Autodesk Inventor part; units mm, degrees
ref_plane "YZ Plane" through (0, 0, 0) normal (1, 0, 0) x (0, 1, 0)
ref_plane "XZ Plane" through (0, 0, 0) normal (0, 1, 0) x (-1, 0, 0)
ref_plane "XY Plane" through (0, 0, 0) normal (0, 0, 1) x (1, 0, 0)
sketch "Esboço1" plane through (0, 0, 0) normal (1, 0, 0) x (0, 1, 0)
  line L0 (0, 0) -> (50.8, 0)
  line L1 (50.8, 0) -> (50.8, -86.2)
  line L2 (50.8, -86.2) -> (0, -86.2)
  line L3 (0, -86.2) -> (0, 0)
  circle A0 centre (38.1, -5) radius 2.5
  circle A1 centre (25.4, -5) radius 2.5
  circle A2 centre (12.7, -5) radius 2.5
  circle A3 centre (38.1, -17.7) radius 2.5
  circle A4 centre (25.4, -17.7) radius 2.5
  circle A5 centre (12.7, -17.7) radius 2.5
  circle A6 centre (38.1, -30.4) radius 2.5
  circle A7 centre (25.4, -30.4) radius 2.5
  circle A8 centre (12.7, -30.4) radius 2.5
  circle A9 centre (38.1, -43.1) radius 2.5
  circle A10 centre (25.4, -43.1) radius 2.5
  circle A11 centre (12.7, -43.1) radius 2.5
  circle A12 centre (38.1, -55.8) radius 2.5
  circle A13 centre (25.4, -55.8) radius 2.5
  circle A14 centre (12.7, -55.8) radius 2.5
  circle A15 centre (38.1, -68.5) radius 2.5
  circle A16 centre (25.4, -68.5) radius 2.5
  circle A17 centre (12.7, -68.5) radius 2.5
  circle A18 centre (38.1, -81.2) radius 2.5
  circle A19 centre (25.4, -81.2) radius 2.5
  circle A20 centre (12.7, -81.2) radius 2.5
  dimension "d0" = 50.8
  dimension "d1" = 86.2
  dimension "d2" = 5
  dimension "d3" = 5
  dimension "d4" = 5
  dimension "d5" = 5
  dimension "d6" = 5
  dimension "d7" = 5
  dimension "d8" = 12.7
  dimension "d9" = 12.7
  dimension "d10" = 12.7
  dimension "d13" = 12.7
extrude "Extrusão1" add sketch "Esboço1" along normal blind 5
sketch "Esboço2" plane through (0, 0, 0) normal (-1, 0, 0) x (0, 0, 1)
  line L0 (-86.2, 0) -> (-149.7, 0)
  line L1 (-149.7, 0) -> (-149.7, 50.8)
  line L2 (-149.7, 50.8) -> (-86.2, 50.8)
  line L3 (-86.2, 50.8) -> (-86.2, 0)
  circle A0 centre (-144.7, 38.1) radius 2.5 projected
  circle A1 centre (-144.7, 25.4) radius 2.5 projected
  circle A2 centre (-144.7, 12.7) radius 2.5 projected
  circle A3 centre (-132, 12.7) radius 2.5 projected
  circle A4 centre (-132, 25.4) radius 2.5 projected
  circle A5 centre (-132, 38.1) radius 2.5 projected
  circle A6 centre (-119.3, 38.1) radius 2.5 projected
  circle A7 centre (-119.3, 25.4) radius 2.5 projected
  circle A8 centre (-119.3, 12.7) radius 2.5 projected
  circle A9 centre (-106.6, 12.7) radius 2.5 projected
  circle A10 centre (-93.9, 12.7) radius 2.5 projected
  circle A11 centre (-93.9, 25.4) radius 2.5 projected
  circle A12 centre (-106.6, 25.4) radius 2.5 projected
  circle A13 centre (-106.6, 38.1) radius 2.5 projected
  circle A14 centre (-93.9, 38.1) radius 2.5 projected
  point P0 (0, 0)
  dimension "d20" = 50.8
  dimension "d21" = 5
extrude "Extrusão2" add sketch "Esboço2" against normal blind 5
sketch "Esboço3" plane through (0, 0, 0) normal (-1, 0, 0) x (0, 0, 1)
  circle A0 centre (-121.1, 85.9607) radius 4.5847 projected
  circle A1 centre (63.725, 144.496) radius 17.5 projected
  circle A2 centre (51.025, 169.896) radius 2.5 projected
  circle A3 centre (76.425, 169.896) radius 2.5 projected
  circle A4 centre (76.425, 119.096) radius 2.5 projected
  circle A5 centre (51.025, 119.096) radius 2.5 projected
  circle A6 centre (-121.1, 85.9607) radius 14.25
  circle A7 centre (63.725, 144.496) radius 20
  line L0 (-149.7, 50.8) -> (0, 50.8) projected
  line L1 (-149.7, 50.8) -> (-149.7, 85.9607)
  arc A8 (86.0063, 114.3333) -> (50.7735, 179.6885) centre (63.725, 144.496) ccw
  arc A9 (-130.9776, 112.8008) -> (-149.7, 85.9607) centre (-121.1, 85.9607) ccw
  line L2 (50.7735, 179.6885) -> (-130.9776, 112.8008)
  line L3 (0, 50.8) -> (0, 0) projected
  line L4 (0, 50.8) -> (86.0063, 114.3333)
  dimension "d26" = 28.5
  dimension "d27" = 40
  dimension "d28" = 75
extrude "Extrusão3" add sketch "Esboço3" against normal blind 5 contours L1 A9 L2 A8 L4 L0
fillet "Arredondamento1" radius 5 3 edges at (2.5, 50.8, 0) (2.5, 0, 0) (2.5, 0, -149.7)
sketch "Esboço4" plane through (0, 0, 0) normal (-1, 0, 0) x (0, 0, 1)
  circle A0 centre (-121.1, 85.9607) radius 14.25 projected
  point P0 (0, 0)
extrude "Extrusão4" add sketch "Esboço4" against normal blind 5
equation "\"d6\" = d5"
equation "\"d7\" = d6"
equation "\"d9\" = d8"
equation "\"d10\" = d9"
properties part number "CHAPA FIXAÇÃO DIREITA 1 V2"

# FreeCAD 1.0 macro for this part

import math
import FreeCAD as App
import Part
import Sketcher
Q = App.Units.Quantity


def edges_at(feature, points):
    """Names of the edges that pass closest to the given points."""
    edges = feature.Shape.Edges
    near = lambda p: min(range(len(edges)), key=lambda i: edges[i].distToShape(Part.Vertex(*p))[0])
    return sorted({f"Edge{near(p) + 1}" for p in points})

doc = App.newDocument("Part")
params = doc.addObject("Spreadsheet::Sheet", "Params")
for row, (alias, value) in enumerate([
    ("sketch1_diameter", "5 mm"),
    ("sketch1_width", "50.8 mm"),
    ("sketch1_height", "86.2 mm"),
    ("pad1_length", "5 mm"),
    ("sketch2_diameter", "5 mm"),
    ("sketch2_width", "50.8 mm"),
    ("sketch2_height", "63.5 mm"),
    ("pad2_length", "5 mm"),
    ("sketch3_diameter", "40 mm"),
    ("sketch3_diameter2", "28.5 mm"),
    ("sketch3_radius", "37.5 mm"),
    ("sketch3_diameter3", "5 mm"),
    ("sketch3_diameter4", "5 mm"),
    ("pad3_length", "5 mm"),
    ("fillet_radius", "5 mm"),
    ("sketch4_diameter", "28.5 mm"),
    ("pad4_length", "5 mm"),
], start=1):
    params.set(f"A{row}", alias)
    params.set(f"B{row}", "=" + value)
    params.setAlias(f"B{row}", alias)

body = doc.addObject("PartDesign::Body", "Body")

sketch1 = body.newObject("Sketcher::SketchObject", "Sketch")
sketch1.AttachmentSupport = (doc.getObject("YZ_Plane"), [""])
sketch1.MapMode = "FlatFace"
sketch1.addGeometry([
    Part.LineSegment(App.Vector(50.8, 0, 0), App.Vector(0, 0, 0)),
    Part.LineSegment(App.Vector(0, 0, 0), App.Vector(0, -86.2, 0)),
    Part.LineSegment(App.Vector(0, -86.2, 0), App.Vector(50.8, -86.2, 0)),
    Part.LineSegment(App.Vector(50.8, -86.2, 0), App.Vector(50.8, 0, 0)),
    Part.Circle(App.Vector(12.7, -81.2, 0), App.Vector(0, 0, 1), 2.5),
    Part.Circle(App.Vector(12.7, -68.5, 0), App.Vector(0, 0, 1), 2.5),
    Part.Circle(App.Vector(25.4, -81.2, 0), App.Vector(0, 0, 1), 2.5),
    Part.Circle(App.Vector(25.4, -68.5, 0), App.Vector(0, 0, 1), 2.5),
    Part.Circle(App.Vector(12.7, -55.8, 0), App.Vector(0, 0, 1), 2.5),
    Part.Circle(App.Vector(25.4, -55.8, 0), App.Vector(0, 0, 1), 2.5),
    Part.Circle(App.Vector(38.1, -81.2, 0), App.Vector(0, 0, 1), 2.5),
    Part.Circle(App.Vector(38.1, -68.5, 0), App.Vector(0, 0, 1), 2.5),
    Part.Circle(App.Vector(38.1, -55.8, 0), App.Vector(0, 0, 1), 2.5),
    Part.Circle(App.Vector(12.7, -43.1, 0), App.Vector(0, 0, 1), 2.5),
    Part.Circle(App.Vector(12.7, -30.4, 0), App.Vector(0, 0, 1), 2.5),
    Part.Circle(App.Vector(25.4, -43.1, 0), App.Vector(0, 0, 1), 2.5),
    Part.Circle(App.Vector(25.4, -30.4, 0), App.Vector(0, 0, 1), 2.5),
    Part.Circle(App.Vector(12.7, -17.7, 0), App.Vector(0, 0, 1), 2.5),
    Part.Circle(App.Vector(12.7, -5, 0), App.Vector(0, 0, 1), 2.5),
    Part.Circle(App.Vector(25.4, -17.7, 0), App.Vector(0, 0, 1), 2.5),
    Part.Circle(App.Vector(25.4, -5, 0), App.Vector(0, 0, 1), 2.5),
    Part.Circle(App.Vector(38.1, -43.1, 0), App.Vector(0, 0, 1), 2.5),
    Part.Circle(App.Vector(38.1, -30.4, 0), App.Vector(0, 0, 1), 2.5),
    Part.Circle(App.Vector(38.1, -17.7, 0), App.Vector(0, 0, 1), 2.5),
    Part.Circle(App.Vector(38.1, -5, 0), App.Vector(0, 0, 1), 2.5),
], False)
sketch1.addConstraint([
    Sketcher.Constraint("Coincident", 0, 2, 1, 1),
    Sketcher.Constraint("Coincident", 1, 2, 2, 1),
    Sketcher.Constraint("Coincident", 2, 2, 3, 1),
    Sketcher.Constraint("Coincident", 3, 2, 0, 1),
    Sketcher.Constraint("Horizontal", 0),
    Sketcher.Constraint("Vertical", 1),
    Sketcher.Constraint("Horizontal", 2),
    Sketcher.Constraint("Vertical", 3),
    Sketcher.Constraint("Coincident", 0, 2, -1, 1),
    Sketcher.Constraint("Equal", 4, 5),
    Sketcher.Constraint("Equal", 5, 6),
    Sketcher.Constraint("Equal", 6, 7),
    Sketcher.Constraint("Equal", 7, 8),
    Sketcher.Constraint("Equal", 8, 9),
    Sketcher.Constraint("Equal", 9, 10),
    Sketcher.Constraint("Equal", 10, 11),
    Sketcher.Constraint("Equal", 11, 12),
    Sketcher.Constraint("Equal", 12, 13),
    Sketcher.Constraint("Equal", 13, 14),
    Sketcher.Constraint("Equal", 14, 15),
    Sketcher.Constraint("Equal", 15, 16),
    Sketcher.Constraint("Equal", 16, 17),
    Sketcher.Constraint("Equal", 17, 18),
    Sketcher.Constraint("Equal", 18, 19),
    Sketcher.Constraint("Equal", 19, 20),
    Sketcher.Constraint("Equal", 20, 21),
    Sketcher.Constraint("Equal", 21, 22),
    Sketcher.Constraint("Equal", 22, 23),
    Sketcher.Constraint("Equal", 23, 24),
    Sketcher.Constraint("Horizontal", 4, 3, 6, 3),
    Sketcher.Constraint("Horizontal", 5, 3, 7, 3),
    Sketcher.Constraint("Horizontal", 8, 3, 9, 3),
    Sketcher.Constraint("Horizontal", 6, 3, 10, 3),
    Sketcher.Constraint("Horizontal", 7, 3, 11, 3),
    Sketcher.Constraint("Horizontal", 9, 3, 12, 3),
    Sketcher.Constraint("Horizontal", 13, 3, 15, 3),
    Sketcher.Constraint("Horizontal", 14, 3, 16, 3),
    Sketcher.Constraint("Horizontal", 17, 3, 19, 3),
    Sketcher.Constraint("Horizontal", 18, 3, 20, 3),
    Sketcher.Constraint("Horizontal", 15, 3, 21, 3),
    Sketcher.Constraint("Horizontal", 16, 3, 22, 3),
    Sketcher.Constraint("Horizontal", 19, 3, 23, 3),
    Sketcher.Constraint("Horizontal", 20, 3, 24, 3),
    Sketcher.Constraint("Vertical", 4, 3, 5, 3),
    Sketcher.Constraint("Vertical", 6, 3, 7, 3),
    Sketcher.Constraint("Vertical", 5, 3, 8, 3),
    Sketcher.Constraint("Vertical", 7, 3, 9, 3),
    Sketcher.Constraint("Vertical", 10, 3, 11, 3),
    Sketcher.Constraint("Vertical", 11, 3, 12, 3),
    Sketcher.Constraint("Vertical", 8, 3, 13, 3),
    Sketcher.Constraint("Vertical", 13, 3, 14, 3),
    Sketcher.Constraint("Vertical", 9, 3, 15, 3),
    Sketcher.Constraint("Vertical", 15, 3, 16, 3),
    Sketcher.Constraint("Vertical", 14, 3, 17, 3),
    Sketcher.Constraint("Vertical", 17, 3, 18, 3),
    Sketcher.Constraint("Vertical", 16, 3, 19, 3),
    Sketcher.Constraint("Vertical", 19, 3, 20, 3),
    Sketcher.Constraint("Vertical", 12, 3, 21, 3),
    Sketcher.Constraint("Vertical", 21, 3, 22, 3),
    Sketcher.Constraint("Vertical", 22, 3, 23, 3),
    Sketcher.Constraint("Vertical", 23, 3, 24, 3),
    Sketcher.Constraint("Diameter", 4, Q("5 mm")),
    Sketcher.Constraint("DistanceX", 0, 2, 0, 1, Q("50.8 mm")),
    Sketcher.Constraint("DistanceY", 1, 2, 1, 1, Q("86.2 mm")),
    Sketcher.Constraint("DistanceY", 18, 3, -1, 1, Q("5 mm")),
    Sketcher.Constraint("DistanceY", 1, 2, 4, 3, Q("5 mm")),
    Sketcher.Constraint("DistanceX", -1, 1, 4, 3, Q("12.7 mm")),
    Sketcher.Constraint("DistanceY", 4, 3, 5, 3, Q("12.7 mm")),
    Sketcher.Constraint("DistanceX", 4, 3, 6, 3, Q("12.7 mm")),
    Sketcher.Constraint("DistanceY", 5, 3, 8, 3, Q("12.7 mm")),
    Sketcher.Constraint("DistanceX", 6, 3, 10, 3, Q("12.7 mm")),
    Sketcher.Constraint("DistanceY", 8, 3, 13, 3, Q("12.7 mm")),
    Sketcher.Constraint("DistanceY", 13, 3, 14, 3, Q("12.7 mm")),
    Sketcher.Constraint("DistanceY", 14, 3, 17, 3, Q("12.7 mm")),
])
sketch1.setExpression("Constraints[61]", "Params.sketch1_diameter")
sketch1.setExpression("Constraints[62]", "Params.sketch1_width")
sketch1.setExpression("Constraints[63]", "Params.sketch1_height")
pad1 = body.newObject("PartDesign::Pad", "Pad")
pad1.Profile = sketch1
pad1.setExpression("Length", "Params.pad1_length")

sketch2 = body.newObject("Sketcher::SketchObject", "Sketch001")
sketch2.AttachmentSupport = (doc.getObject("YZ_Plane"), [""])
sketch2.MapMode = "FlatFace"
sketch2.addGeometry([
    Part.LineSegment(App.Vector(0, -149.7, 0), App.Vector(0, -86.2, 0)),
    Part.LineSegment(App.Vector(0, -86.2, 0), App.Vector(50.8, -86.2, 0)),
    Part.LineSegment(App.Vector(50.8, -86.2, 0), App.Vector(50.8, -149.7, 0)),
    Part.LineSegment(App.Vector(50.8, -149.7, 0), App.Vector(0, -149.7, 0)),
    Part.Circle(App.Vector(12.7, -144.7, 0), App.Vector(0, 0, 1), 2.5),
    Part.Circle(App.Vector(12.7, -132, 0), App.Vector(0, 0, 1), 2.5),
    Part.Circle(App.Vector(12.7, -119.3, 0), App.Vector(0, 0, 1), 2.5),
    Part.Circle(App.Vector(25.4, -144.7, 0), App.Vector(0, 0, 1), 2.5),
    Part.Circle(App.Vector(25.4, -132, 0), App.Vector(0, 0, 1), 2.5),
    Part.Circle(App.Vector(25.4, -119.3, 0), App.Vector(0, 0, 1), 2.5),
    Part.Circle(App.Vector(12.7, -106.6, 0), App.Vector(0, 0, 1), 2.5),
    Part.Circle(App.Vector(12.7, -93.9, 0), App.Vector(0, 0, 1), 2.5),
    Part.Circle(App.Vector(25.4, -106.6, 0), App.Vector(0, 0, 1), 2.5),
    Part.Circle(App.Vector(25.4, -93.9, 0), App.Vector(0, 0, 1), 2.5),
    Part.Circle(App.Vector(38.1, -144.7, 0), App.Vector(0, 0, 1), 2.5),
    Part.Circle(App.Vector(38.1, -132, 0), App.Vector(0, 0, 1), 2.5),
    Part.Circle(App.Vector(38.1, -119.3, 0), App.Vector(0, 0, 1), 2.5),
    Part.Circle(App.Vector(38.1, -106.6, 0), App.Vector(0, 0, 1), 2.5),
    Part.Circle(App.Vector(38.1, -93.9, 0), App.Vector(0, 0, 1), 2.5),
], False)
sketch2.addConstraint([
    Sketcher.Constraint("Coincident", 0, 2, 1, 1),
    Sketcher.Constraint("Coincident", 1, 2, 2, 1),
    Sketcher.Constraint("Coincident", 2, 2, 3, 1),
    Sketcher.Constraint("Coincident", 3, 2, 0, 1),
    Sketcher.Constraint("Vertical", 0),
    Sketcher.Constraint("Horizontal", 1),
    Sketcher.Constraint("Vertical", 2),
    Sketcher.Constraint("Horizontal", 3),
    Sketcher.Constraint("Equal", 4, 5),
    Sketcher.Constraint("Equal", 5, 6),
    Sketcher.Constraint("Equal", 6, 7),
    Sketcher.Constraint("Equal", 7, 8),
    Sketcher.Constraint("Equal", 8, 9),
    Sketcher.Constraint("Equal", 9, 10),
    Sketcher.Constraint("Equal", 10, 11),
    Sketcher.Constraint("Equal", 11, 12),
    Sketcher.Constraint("Equal", 12, 13),
    Sketcher.Constraint("Equal", 13, 14),
    Sketcher.Constraint("Equal", 14, 15),
    Sketcher.Constraint("Equal", 15, 16),
    Sketcher.Constraint("Equal", 16, 17),
    Sketcher.Constraint("Equal", 17, 18),
    Sketcher.Constraint("PointOnObject", 0, 2, -2),
    Sketcher.Constraint("Horizontal", 4, 3, 7, 3),
    Sketcher.Constraint("Horizontal", 5, 3, 8, 3),
    Sketcher.Constraint("Horizontal", 6, 3, 9, 3),
    Sketcher.Constraint("Horizontal", 10, 3, 12, 3),
    Sketcher.Constraint("Horizontal", 11, 3, 13, 3),
    Sketcher.Constraint("Horizontal", 7, 3, 14, 3),
    Sketcher.Constraint("Horizontal", 8, 3, 15, 3),
    Sketcher.Constraint("Horizontal", 9, 3, 16, 3),
    Sketcher.Constraint("Horizontal", 12, 3, 17, 3),
    Sketcher.Constraint("Horizontal", 13, 3, 18, 3),
    Sketcher.Constraint("Vertical", 4, 3, 5, 3),
    Sketcher.Constraint("Vertical", 5, 3, 6, 3),
    Sketcher.Constraint("Vertical", 7, 3, 8, 3),
    Sketcher.Constraint("Vertical", 8, 3, 9, 3),
    Sketcher.Constraint("Vertical", 6, 3, 10, 3),
    Sketcher.Constraint("Vertical", 10, 3, 11, 3),
    Sketcher.Constraint("Vertical", 9, 3, 12, 3),
    Sketcher.Constraint("Vertical", 12, 3, 13, 3),
    Sketcher.Constraint("Vertical", 14, 3, 15, 3),
    Sketcher.Constraint("Vertical", 15, 3, 16, 3),
    Sketcher.Constraint("Vertical", 16, 3, 17, 3),
    Sketcher.Constraint("Vertical", 17, 3, 18, 3),
    Sketcher.Constraint("Diameter", 4, Q("5 mm")),
    Sketcher.Constraint("DistanceX", 1, 1, 1, 2, Q("50.8 mm")),
    Sketcher.Constraint("DistanceY", 2, 2, 14, 3, Q("5 mm")),
    Sketcher.Constraint("DistanceY", 0, 1, 0, 2, Q("63.5 mm")),
    Sketcher.Constraint("DistanceY", 5, 3, -1, 1, Q("132 mm")),
    Sketcher.Constraint("DistanceX", -1, 1, 4, 3, Q("12.7 mm")),
    Sketcher.Constraint("DistanceY", 4, 3, -1, 1, Q("144.7 mm")),
    Sketcher.Constraint("DistanceY", 6, 3, -1, 1, Q("119.3 mm")),
    Sketcher.Constraint("DistanceX", -1, 1, 7, 3, Q("25.4 mm")),
    Sketcher.Constraint("DistanceY", 10, 3, -1, 1, Q("106.6 mm")),
    Sketcher.Constraint("DistanceY", 11, 3, -1, 1, Q("93.9 mm")),
    Sketcher.Constraint("DistanceX", -1, 1, 14, 3, Q("38.1 mm")),
])
sketch2.setExpression("Constraints[45]", "Params.sketch2_diameter")
sketch2.setExpression("Constraints[46]", "Params.sketch2_width")
sketch2.setExpression("Constraints[48]", "Params.sketch2_height")
pad2 = body.newObject("PartDesign::Pad", "Pad001")
pad2.Profile = sketch2
pad2.setExpression("Length", "Params.pad2_length")

sketch3 = body.newObject("Sketcher::SketchObject", "Sketch002")
sketch3.AttachmentSupport = (doc.getObject("YZ_Plane"), [""])
sketch3.MapMode = "FlatFace"
sketch3.addGeometry([
    Part.LineSegment(App.Vector(85.9607, -149.7, 0), App.Vector(50.8, -149.7, 0)),
    Part.LineSegment(App.Vector(50.8, -149.7, 0), App.Vector(50.8, 0, 0)),
    Part.LineSegment(App.Vector(50.8, 0, 0), App.Vector(114.3333, 86.0063, 0)),
    Part.ArcOfCircle(Part.Circle(App.Vector(144.496, 63.725, 0), App.Vector(0, 0, 1), 37.499931), math.radians(-20.204562), math.radians(143.546578)),
    Part.LineSegment(App.Vector(179.6885, 50.7735, 0), App.Vector(112.8008, -130.9776, 0)),
    Part.ArcOfCircle(Part.Circle(App.Vector(85.9607, -121.1, 0), App.Vector(0, 0, 1), 28.599964), math.radians(-90), math.radians(-20.204448)),
    Part.Circle(App.Vector(85.9607, -121.1, 0), App.Vector(0, 0, 1), 14.25),
    Part.Circle(App.Vector(119.096, 51.025, 0), App.Vector(0, 0, 1), 2.5),
    Part.Circle(App.Vector(119.096, 76.425, 0), App.Vector(0, 0, 1), 2.5),
    Part.Circle(App.Vector(144.496, 63.725, 0), App.Vector(0, 0, 1), 20),
    Part.Circle(App.Vector(169.896, 51.025, 0), App.Vector(0, 0, 1), 2.5),
    Part.Circle(App.Vector(169.896, 76.425, 0), App.Vector(0, 0, 1), 2.5),
], False)
sketch3.addConstraint([
    Sketcher.Constraint("Coincident", 0, 2, 1, 1),
    Sketcher.Constraint("Coincident", 1, 2, 2, 1),
    Sketcher.Constraint("Coincident", 2, 2, 3, 2),
    Sketcher.Constraint("Coincident", 3, 1, 4, 1),
    Sketcher.Constraint("Coincident", 4, 2, 5, 2),
    Sketcher.Constraint("Coincident", 5, 1, 0, 1),
    Sketcher.Constraint("Horizontal", 0),
    Sketcher.Constraint("Vertical", 1),
    Sketcher.Constraint("Coincident", 6, 3, 5, 3),
    Sketcher.Constraint("Coincident", 9, 3, 3, 3),
    Sketcher.Constraint("PointOnObject", 1, 2, -1),
    Sketcher.Constraint("Diameter", 9, Q("40 mm")),
    Sketcher.Constraint("Diameter", 6, Q("28.5 mm")),
    Sketcher.Constraint("Radius", 3, Q("37.5 mm")),
    Sketcher.Constraint("Diameter", 7, Q("5 mm")),
    Sketcher.Constraint("Diameter", 8, Q("5 mm")),
    Sketcher.Constraint("Diameter", 10, Q("5 mm")),
    Sketcher.Constraint("Diameter", 11, Q("5 mm")),
    Sketcher.Constraint("Radius", 5, Q("28.6 mm")),
    Sketcher.Constraint("DistanceY", 1, 1, 1, 2, Q("149.7 mm")),
    Sketcher.Constraint("DistanceX", -1, 1, 0, 2, Q("50.8 mm")),
    Sketcher.Constraint("DistanceX", 7, 3, 3, 3, Q("25.4 mm")),
    Sketcher.Constraint("DistanceY", 7, 3, 3, 3, Q("12.7 mm")),
    Sketcher.Constraint("DistanceY", 7, 3, 8, 3, Q("25.4 mm")),
    Sketcher.Constraint("DistanceX", 8, 3, 3, 3, Q("25.4 mm")),
    Sketcher.Constraint("DistanceX", 3, 3, 10, 3, Q("25.4 mm")),
    Sketcher.Constraint("DistanceY", 10, 3, 3, 3, Q("12.7 mm")),
    Sketcher.Constraint("DistanceY", 10, 3, 11, 3, Q("25.4 mm")),
    Sketcher.Constraint("DistanceX", 3, 3, 11, 3, Q("25.4 mm")),
    Sketcher.Constraint("DistanceX", 5, 3, 4, 2, Q("26.84 mm")),
    Sketcher.Constraint("DistanceX", 5, 1, 4, 2, Q("26.84 mm")),
    Sketcher.Constraint("DistanceX", 0, 2, 0, 1, Q("35.1607 mm")),
    Sketcher.Constraint("DistanceX", -1, 1, 3, 3, Q("144.496 mm")),
    Sketcher.Constraint("DistanceY", -1, 1, 3, 3, Q("63.725 mm")),
    Sketcher.Constraint("Distance", 2, Q("106.9278 mm")),
    Sketcher.Constraint("Distance", 4, Q("193.6683 mm")),
])
sketch3.setExpression("Constraints[11]", "Params.sketch3_diameter")
sketch3.setExpression("Constraints[12]", "Params.sketch3_diameter2")
sketch3.setExpression("Constraints[13]", "Params.sketch3_radius")
sketch3.setExpression("Constraints[14]", "Params.sketch3_diameter3")
sketch3.setExpression("Constraints[15]", "Params.sketch3_diameter4")
pad3 = body.newObject("PartDesign::Pad", "Pad002")
pad3.Profile = sketch3
pad3.setExpression("Length", "Params.pad3_length")
doc.recompute()

fillet = body.newObject("PartDesign::Fillet", "Fillet")
fillet.Base = (pad3, edges_at(pad3, [(2.5, 50.8, 0), (2.5, 0, 0), (2.5, 0, -149.7)]))
fillet.setExpression("Radius", "Params.fillet_radius")

sketch4 = body.newObject("Sketcher::SketchObject", "Sketch003")
sketch4.AttachmentSupport = (doc.getObject("YZ_Plane"), [""])
sketch4.MapMode = "FlatFace"
sketch4.addGeometry(Part.Circle(App.Vector(86, -121, 0), App.Vector(0, 0, 1), 14), False)
sketch4.addConstraint([
    Sketcher.Constraint("Diameter", 0, Q("28.5 mm")),
    Sketcher.Constraint("DistanceY", 0, 3, -1, 1, Q("121.1 mm")),
    Sketcher.Constraint("DistanceX", -1, 1, 0, 3, Q("85.9607 mm")),
])
sketch4.setExpression("Constraints[0]", "Params.sketch4_diameter")
pad4 = body.newObject("PartDesign::Pad", "Pad003")
pad4.Profile = sketch4
pad4.setExpression("Length", "Params.pad4_length")

doc.recompute()
